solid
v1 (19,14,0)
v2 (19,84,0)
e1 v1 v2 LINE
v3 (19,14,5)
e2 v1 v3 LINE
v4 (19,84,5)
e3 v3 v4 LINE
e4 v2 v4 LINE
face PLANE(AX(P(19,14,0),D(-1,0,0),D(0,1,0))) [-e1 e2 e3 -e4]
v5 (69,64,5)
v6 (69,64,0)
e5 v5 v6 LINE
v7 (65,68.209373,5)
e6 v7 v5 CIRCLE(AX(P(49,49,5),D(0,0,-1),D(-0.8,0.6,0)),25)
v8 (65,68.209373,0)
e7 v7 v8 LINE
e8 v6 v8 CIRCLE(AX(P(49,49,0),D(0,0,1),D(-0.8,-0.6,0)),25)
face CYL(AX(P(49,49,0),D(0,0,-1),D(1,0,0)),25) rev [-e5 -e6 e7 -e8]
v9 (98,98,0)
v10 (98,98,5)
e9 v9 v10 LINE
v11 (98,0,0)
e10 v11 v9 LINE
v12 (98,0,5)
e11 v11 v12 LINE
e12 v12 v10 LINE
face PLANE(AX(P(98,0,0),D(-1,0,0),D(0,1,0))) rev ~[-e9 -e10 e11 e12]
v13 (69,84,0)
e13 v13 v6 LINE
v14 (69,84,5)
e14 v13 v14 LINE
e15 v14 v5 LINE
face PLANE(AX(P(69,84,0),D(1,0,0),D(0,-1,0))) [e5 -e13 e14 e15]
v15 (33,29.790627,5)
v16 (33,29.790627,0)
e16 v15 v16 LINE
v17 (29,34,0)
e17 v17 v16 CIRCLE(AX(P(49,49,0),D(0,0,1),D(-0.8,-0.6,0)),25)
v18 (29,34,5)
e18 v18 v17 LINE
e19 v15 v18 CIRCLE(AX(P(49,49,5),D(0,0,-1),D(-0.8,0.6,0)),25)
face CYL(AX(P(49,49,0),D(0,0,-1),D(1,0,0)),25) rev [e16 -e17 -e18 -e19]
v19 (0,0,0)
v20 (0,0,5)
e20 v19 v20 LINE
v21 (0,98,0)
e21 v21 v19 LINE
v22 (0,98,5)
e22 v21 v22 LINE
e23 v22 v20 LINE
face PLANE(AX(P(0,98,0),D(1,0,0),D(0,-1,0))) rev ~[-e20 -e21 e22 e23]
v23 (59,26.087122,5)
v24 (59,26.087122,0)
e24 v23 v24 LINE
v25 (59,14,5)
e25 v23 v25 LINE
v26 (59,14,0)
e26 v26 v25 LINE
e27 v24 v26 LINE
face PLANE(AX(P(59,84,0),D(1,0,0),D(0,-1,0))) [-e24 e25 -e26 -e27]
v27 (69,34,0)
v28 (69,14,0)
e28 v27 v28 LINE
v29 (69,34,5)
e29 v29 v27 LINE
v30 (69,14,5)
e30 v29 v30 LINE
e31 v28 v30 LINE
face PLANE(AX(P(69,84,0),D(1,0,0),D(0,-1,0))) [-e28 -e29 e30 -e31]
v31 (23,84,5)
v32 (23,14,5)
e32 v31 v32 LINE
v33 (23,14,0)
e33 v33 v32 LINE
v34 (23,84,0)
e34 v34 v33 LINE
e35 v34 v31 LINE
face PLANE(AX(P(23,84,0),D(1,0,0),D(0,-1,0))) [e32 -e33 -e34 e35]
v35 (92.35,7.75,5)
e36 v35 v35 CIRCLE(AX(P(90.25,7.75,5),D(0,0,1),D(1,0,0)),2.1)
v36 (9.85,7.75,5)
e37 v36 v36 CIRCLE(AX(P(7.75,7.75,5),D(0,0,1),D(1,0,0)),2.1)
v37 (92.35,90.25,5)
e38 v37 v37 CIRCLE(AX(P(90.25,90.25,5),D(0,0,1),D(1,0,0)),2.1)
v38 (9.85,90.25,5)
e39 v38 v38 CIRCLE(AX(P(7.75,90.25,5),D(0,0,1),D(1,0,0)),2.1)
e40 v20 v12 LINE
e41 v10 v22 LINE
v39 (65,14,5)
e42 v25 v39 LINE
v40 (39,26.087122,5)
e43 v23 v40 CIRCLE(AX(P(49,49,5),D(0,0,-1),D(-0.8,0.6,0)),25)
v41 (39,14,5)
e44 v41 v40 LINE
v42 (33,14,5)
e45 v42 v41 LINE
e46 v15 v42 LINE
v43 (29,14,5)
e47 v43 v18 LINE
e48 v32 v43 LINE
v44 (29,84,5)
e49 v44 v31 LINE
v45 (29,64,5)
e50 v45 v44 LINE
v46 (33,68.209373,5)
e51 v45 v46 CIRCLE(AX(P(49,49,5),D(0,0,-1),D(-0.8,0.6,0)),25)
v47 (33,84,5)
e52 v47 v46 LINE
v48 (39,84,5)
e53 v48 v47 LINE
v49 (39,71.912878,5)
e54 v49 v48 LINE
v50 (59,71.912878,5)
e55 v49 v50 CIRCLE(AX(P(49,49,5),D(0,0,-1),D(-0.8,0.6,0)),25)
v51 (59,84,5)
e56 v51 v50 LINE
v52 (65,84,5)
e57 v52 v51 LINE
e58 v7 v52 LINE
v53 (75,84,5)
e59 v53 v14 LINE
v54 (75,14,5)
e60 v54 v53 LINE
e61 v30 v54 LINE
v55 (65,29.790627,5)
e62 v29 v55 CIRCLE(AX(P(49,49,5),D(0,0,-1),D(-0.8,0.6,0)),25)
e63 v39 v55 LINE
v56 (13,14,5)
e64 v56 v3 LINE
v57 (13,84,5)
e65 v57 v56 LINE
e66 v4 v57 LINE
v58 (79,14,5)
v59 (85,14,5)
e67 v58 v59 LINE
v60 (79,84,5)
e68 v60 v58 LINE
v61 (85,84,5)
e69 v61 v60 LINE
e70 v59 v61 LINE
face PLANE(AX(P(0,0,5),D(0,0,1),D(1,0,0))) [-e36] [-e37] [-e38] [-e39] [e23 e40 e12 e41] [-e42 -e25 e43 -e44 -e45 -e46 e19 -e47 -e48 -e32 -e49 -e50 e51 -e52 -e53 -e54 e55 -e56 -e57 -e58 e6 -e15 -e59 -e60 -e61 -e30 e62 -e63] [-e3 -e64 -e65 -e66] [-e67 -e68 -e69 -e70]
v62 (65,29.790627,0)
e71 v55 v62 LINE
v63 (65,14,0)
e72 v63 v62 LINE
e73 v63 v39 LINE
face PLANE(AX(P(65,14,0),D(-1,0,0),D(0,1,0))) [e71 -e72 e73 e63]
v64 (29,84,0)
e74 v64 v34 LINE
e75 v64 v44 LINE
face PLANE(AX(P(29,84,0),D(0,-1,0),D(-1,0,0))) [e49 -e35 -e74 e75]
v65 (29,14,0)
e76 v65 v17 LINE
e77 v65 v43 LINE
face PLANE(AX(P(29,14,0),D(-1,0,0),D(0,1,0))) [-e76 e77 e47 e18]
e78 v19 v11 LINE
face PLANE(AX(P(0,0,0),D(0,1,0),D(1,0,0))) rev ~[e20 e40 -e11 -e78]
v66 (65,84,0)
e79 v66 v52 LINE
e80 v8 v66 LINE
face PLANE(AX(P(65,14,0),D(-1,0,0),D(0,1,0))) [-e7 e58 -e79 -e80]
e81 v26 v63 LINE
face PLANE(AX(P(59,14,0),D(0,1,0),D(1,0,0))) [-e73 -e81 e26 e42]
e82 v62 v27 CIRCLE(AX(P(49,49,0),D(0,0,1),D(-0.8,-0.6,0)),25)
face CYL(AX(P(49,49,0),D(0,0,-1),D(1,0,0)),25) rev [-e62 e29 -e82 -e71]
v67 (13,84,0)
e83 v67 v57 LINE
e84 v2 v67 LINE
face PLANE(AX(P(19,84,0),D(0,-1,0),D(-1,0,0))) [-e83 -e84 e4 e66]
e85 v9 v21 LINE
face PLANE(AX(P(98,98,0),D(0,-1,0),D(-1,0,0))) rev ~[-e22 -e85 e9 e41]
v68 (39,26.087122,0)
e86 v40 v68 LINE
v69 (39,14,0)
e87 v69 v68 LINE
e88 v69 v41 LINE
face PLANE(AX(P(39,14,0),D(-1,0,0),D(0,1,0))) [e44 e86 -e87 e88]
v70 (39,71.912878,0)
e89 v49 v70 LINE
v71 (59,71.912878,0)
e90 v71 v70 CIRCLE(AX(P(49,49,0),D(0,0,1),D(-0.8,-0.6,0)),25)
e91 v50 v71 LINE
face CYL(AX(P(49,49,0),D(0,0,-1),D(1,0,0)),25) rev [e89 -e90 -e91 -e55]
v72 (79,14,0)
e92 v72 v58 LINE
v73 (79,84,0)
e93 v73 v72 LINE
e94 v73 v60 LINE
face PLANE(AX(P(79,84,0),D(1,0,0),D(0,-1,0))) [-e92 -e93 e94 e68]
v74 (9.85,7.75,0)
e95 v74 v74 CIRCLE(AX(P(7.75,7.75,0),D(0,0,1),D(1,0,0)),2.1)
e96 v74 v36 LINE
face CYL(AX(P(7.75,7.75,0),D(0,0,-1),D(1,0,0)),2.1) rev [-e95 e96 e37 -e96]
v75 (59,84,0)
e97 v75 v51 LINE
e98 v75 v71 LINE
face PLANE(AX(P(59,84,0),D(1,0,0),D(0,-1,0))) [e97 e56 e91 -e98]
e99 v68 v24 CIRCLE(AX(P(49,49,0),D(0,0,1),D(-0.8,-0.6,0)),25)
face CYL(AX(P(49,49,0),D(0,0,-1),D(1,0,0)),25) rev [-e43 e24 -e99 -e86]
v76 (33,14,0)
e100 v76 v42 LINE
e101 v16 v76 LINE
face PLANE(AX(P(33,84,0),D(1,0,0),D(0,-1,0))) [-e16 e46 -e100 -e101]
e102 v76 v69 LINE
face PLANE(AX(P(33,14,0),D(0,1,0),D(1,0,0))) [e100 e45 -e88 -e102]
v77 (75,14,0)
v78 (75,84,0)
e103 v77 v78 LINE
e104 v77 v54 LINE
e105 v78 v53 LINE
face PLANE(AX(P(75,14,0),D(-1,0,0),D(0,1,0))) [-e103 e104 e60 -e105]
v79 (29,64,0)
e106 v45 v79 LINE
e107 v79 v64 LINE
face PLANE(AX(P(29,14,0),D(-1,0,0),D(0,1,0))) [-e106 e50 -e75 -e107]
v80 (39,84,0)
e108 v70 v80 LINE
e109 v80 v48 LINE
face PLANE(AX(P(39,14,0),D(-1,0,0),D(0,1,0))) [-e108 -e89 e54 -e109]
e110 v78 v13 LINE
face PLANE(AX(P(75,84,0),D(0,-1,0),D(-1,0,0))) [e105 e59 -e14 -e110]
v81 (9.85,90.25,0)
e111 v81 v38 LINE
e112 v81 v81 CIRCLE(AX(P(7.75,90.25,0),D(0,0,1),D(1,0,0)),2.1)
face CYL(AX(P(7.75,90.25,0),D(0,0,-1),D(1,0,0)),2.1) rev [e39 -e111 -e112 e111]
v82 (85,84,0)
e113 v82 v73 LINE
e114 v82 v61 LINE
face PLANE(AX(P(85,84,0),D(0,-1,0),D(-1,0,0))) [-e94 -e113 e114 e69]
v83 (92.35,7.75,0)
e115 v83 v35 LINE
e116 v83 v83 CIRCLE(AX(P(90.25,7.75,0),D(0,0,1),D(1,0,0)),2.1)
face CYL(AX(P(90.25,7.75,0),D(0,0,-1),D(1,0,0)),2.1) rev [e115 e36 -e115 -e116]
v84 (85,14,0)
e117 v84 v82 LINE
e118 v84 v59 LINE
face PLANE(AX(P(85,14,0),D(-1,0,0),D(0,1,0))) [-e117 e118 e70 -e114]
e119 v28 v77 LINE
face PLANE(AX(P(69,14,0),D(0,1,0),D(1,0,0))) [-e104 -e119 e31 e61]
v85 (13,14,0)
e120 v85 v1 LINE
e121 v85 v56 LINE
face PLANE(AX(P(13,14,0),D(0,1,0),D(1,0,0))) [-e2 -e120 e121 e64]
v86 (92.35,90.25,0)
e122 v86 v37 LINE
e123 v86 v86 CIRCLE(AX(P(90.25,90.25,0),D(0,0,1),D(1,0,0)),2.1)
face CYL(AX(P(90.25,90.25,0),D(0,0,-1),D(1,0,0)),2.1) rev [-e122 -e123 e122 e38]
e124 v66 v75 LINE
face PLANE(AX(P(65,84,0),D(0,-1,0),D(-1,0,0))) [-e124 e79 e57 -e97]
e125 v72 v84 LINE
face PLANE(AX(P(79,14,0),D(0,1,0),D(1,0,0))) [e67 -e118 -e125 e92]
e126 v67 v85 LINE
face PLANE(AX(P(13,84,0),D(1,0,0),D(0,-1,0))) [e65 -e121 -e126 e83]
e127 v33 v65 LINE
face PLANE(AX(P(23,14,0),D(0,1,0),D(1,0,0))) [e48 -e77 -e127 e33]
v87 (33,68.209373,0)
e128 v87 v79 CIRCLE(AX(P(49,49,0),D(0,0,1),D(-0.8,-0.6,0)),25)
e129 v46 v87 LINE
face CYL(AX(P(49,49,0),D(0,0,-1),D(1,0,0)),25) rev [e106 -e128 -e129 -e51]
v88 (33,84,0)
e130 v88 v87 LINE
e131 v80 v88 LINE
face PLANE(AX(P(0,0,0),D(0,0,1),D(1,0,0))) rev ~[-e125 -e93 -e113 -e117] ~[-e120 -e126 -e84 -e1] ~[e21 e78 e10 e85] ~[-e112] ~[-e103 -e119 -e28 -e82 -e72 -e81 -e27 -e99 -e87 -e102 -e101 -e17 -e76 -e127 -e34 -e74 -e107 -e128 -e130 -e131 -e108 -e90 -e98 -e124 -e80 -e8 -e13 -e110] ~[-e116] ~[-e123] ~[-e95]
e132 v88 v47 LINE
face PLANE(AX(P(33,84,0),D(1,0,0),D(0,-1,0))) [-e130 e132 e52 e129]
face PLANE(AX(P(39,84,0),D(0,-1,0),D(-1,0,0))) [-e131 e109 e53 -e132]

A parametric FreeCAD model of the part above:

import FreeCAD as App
import Part
import Sketcher

V = App.Vector
Q = App.Units.Quantity

doc = App.newDocument("Part")
body = doc.addObject("PartDesign::Body", "Body")

# Sketch on XY plane
sketch1 = doc.addObject("Sketcher::SketchObject", "Sketch")
body.addObject(sketch1)
sketch1.AttachmentSupport = (doc.XY_Plane, [""])
sketch1.MapMode = "FlatFace"
sketch1.addGeometry([
    Part.LineSegment(V(0, 98, 0), V(0, 0, 0)),
    Part.LineSegment(V(0, 0, 0), V(98, 0, 0)),
    Part.LineSegment(V(98, 0, 0), V(98, 98, 0)),
    Part.LineSegment(V(98, 98, 0), V(0, 98, 0)),
], False)
sketch1.addConstraint([
    Sketcher.Constraint("Coincident", 0, 2, 1, 1),
    Sketcher.Constraint("Coincident", 1, 2, 2, 1),
    Sketcher.Constraint("Coincident", 2, 2, 3, 1),
    Sketcher.Constraint("Coincident", 3, 2, 0, 1),
    Sketcher.Constraint("Vertical", 0),
    Sketcher.Constraint("Horizontal", 1),
    Sketcher.Constraint("Vertical", 2),
    Sketcher.Constraint("Horizontal", 3),
    Sketcher.Constraint("Coincident", 0, 2, -1, 1),
    Sketcher.Constraint("Equal", 3, 0),
    Sketcher.Constraint("DistanceX", 1, 1, 1, 2, Q("98 mm")),
])
pad1 = doc.addObject("PartDesign::Pad", "Pad")
body.addObject(pad1)
pad1.Profile = sketch1
pad1.Length = 5

# Sketch on XY plane
sketch2 = doc.addObject("Sketcher::SketchObject", "Sketch001")
body.addObject(sketch2)
sketch2.AttachmentSupport = (doc.XY_Plane, [""])
sketch2.MapMode = "FlatFace"
sketch2.addGeometry(Part.Circle(V(7.75, 7.75, 0), V(0, 0, 1), 2.1), False)
sketch2.addConstraint([
    Sketcher.Constraint("Diameter", 0, Q("4.2 mm")),
    Sketcher.Constraint("DistanceX", -1, 1, 0, 3, Q("7.75 mm")),
    Sketcher.Constraint("DistanceY", -1, 1, 0, 3, Q("7.75 mm")),
])
pocket1 = doc.addObject("PartDesign::Pocket", "Pocket")
body.addObject(pocket1)
pocket1.Profile = sketch2
pocket1.Length = 5
pocket1.Reversed = True

# Sketch on XY plane
sketch3 = doc.addObject("Sketcher::SketchObject", "Sketch002")
body.addObject(sketch3)
sketch3.AttachmentSupport = (doc.XY_Plane, [""])
sketch3.MapMode = "FlatFace"
sketch3.addGeometry(Part.Circle(V(7.75, 90.25, 0), V(0, 0, 1), 2.1), False)
sketch3.addConstraint([
    Sketcher.Constraint("Diameter", 0, Q("4.2 mm")),
    Sketcher.Constraint("DistanceX", -1, 1, 0, 3, Q("7.75 mm")),
    Sketcher.Constraint("DistanceY", -1, 1, 0, 3, Q("90.25 mm")),
])
pocket2 = doc.addObject("PartDesign::Pocket", "Pocket001")
body.addObject(pocket2)
pocket2.Profile = sketch3
pocket2.Length = 5
pocket2.Reversed = True

# Sketch on XY plane
sketch4 = doc.addObject("Sketcher::SketchObject", "Sketch003")
body.addObject(sketch4)
sketch4.AttachmentSupport = (doc.XY_Plane, [""])
sketch4.MapMode = "FlatFace"
sketch4.addGeometry(Part.Circle(V(90.25, 7.75, 0), V(0, 0, 1), 2.1), False)
sketch4.addConstraint([
    Sketcher.Constraint("Diameter", 0, Q("4.2 mm")),
    Sketcher.Constraint("DistanceX", -1, 1, 0, 3, Q("90.25 mm")),
    Sketcher.Constraint("DistanceY", -1, 1, 0, 3, Q("7.75 mm")),
])
pocket3 = doc.addObject("PartDesign::Pocket", "Pocket002")
body.addObject(pocket3)
pocket3.Profile = sketch4
pocket3.Length = 5
pocket3.Reversed = True

# Sketch on XY plane
sketch5 = doc.addObject("Sketcher::SketchObject", "Sketch004")
body.addObject(sketch5)
sketch5.AttachmentSupport = (doc.XY_Plane, [""])
sketch5.MapMode = "FlatFace"
sketch5.addGeometry(Part.Circle(V(90.25, 90.25, 0), V(0, 0, 1), 2.1), False)
sketch5.addConstraint([
    Sketcher.Constraint("Diameter", 0, Q("4.2 mm")),
    Sketcher.Constraint("DistanceX", -1, 1, 0, 3, Q("90.25 mm")),
    Sketcher.Constraint("DistanceY", -1, 1, 0, 3, Q("90.25 mm")),
])
pocket4 = doc.addObject("PartDesign::Pocket", "Pocket003")
body.addObject(pocket4)
pocket4.Profile = sketch5
pocket4.Length = 5
pocket4.Reversed = True

# Sketch on XY plane
sketch6 = doc.addObject("Sketcher::SketchObject", "Sketch005")
body.addObject(sketch6)
sketch6.AttachmentSupport = (doc.XY_Plane, [""])
sketch6.MapMode = "FlatFace"
sketch6.addGeometry(Part.Circle(V(49, 49, 0), V(0, 0, 1), 25), False)
sketch6.addConstraint([
    Sketcher.Constraint("Diameter", 0, Q("50 mm")),
    Sketcher.Constraint("DistanceX", -1, 1, 0, 3, Q("49 mm")),
    Sketcher.Constraint("DistanceY", -1, 1, 0, 3, Q("49 mm")),
])
pocket5 = doc.addObject("PartDesign::Pocket", "Pocket004")
body.addObject(pocket5)
pocket5.Profile = sketch6
pocket5.Length = 5
pocket5.Reversed = True

# Sketch on XY plane
sketch7 = doc.addObject("Sketcher::SketchObject", "Sketch006")
body.addObject(sketch7)
sketch7.AttachmentSupport = (doc.XY_Plane, [""])
sketch7.MapMode = "FlatFace"
sketch7.addGeometry([
    Part.LineSegment(V(13, 84, 0), V(13, 14, 0)),
    Part.LineSegment(V(13, 14, 0), V(19, 14, 0)),
    Part.LineSegment(V(19, 14, 0), V(19, 84, 0)),
    Part.LineSegment(V(19, 84, 0), V(13, 84, 0)),
], False)
sketch7.addConstraint([
    Sketcher.Constraint("Coincident", 0, 2, 1, 1),
    Sketcher.Constraint("Coincident", 1, 2, 2, 1),
    Sketcher.Constraint("Coincident", 2, 2, 3, 1),
    Sketcher.Constraint("Coincident", 3, 2, 0, 1),
    Sketcher.Constraint("Vertical", 0),
    Sketcher.Constraint("Horizontal", 1),
    Sketcher.Constraint("Vertical", 2),
    Sketcher.Constraint("Horizontal", 3),
    Sketcher.Constraint("DistanceX", 1, 1, 1, 2, Q("6 mm")),
    Sketcher.Constraint("DistanceY", 0, 2, 0, 1, Q("70 mm")),
    Sketcher.Constraint("DistanceX", -1, 1, 0, 2, Q("13 mm")),
    Sketcher.Constraint("DistanceY", -1, 1, 0, 2, Q("14 mm")),
])
pocket6 = doc.addObject("PartDesign::Pocket", "Pocket005")
body.addObject(pocket6)
pocket6.Profile = sketch7
pocket6.Length = 5
pocket6.Reversed = True

# Sketch on XY plane
sketch8 = doc.addObject("Sketcher::SketchObject", "Sketch007")
body.addObject(sketch8)
sketch8.AttachmentSupport = (doc.XY_Plane, [""])
sketch8.MapMode = "FlatFace"
sketch8.addGeometry([
    Part.LineSegment(V(23, 84, 0), V(23, 14, 0)),
    Part.LineSegment(V(23, 14, 0), V(29, 14, 0)),
    Part.LineSegment(V(29, 14, 0), V(29, 84, 0)),
    Part.LineSegment(V(29, 84, 0), V(23, 84, 0)),
], False)
sketch8.addConstraint([
    Sketcher.Constraint("Coincident", 0, 2, 1, 1),
    Sketcher.Constraint("Coincident", 1, 2, 2, 1),
    Sketcher.Constraint("Coincident", 2, 2, 3, 1),
    Sketcher.Constraint("Coincident", 3, 2, 0, 1),
    Sketcher.Constraint("Vertical", 0),
    Sketcher.Constraint("Horizontal", 1),
    Sketcher.Constraint("Vertical", 2),
    Sketcher.Constraint("Horizontal", 3),
    Sketcher.Constraint("DistanceX", 1, 1, 1, 2, Q("6 mm")),
    Sketcher.Constraint("DistanceY", 0, 2, 0, 1, Q("70 mm")),
    Sketcher.Constraint("DistanceX", -1, 1, 0, 2, Q("23 mm")),
    Sketcher.Constraint("DistanceY", -1, 1, 0, 2, Q("14 mm")),
])
pocket7 = doc.addObject("PartDesign::Pocket", "Pocket006")
body.addObject(pocket7)
pocket7.Profile = sketch8
pocket7.Length = 5
pocket7.Reversed = True

# Sketch on XY plane
sketch9 = doc.addObject("Sketcher::SketchObject", "Sketch008")
body.addObject(sketch9)
sketch9.AttachmentSupport = (doc.XY_Plane, [""])
sketch9.MapMode = "FlatFace"
sketch9.addGeometry([
    Part.LineSegment(V(33, 84, 0), V(33, 14, 0)),
    Part.LineSegment(V(33, 14, 0), V(39, 14, 0)),
    Part.LineSegment(V(39, 14, 0), V(39, 84, 0)),
    Part.LineSegment(V(39, 84, 0), V(33, 84, 0)),
], False)
sketch9.addConstraint([
    Sketcher.Constraint("Coincident", 0, 2, 1, 1),
    Sketcher.Constraint("Coincident", 1, 2, 2, 1),
    Sketcher.Constraint("Coincident", 2, 2, 3, 1),
    Sketcher.Constraint("Coincident", 3, 2, 0, 1),
    Sketcher.Constraint("Vertical", 0),
    Sketcher.Constraint("Horizontal", 1),
    Sketcher.Constraint("Vertical", 2),
    Sketcher.Constraint("Horizontal", 3),
    Sketcher.Constraint("DistanceX", 1, 1, 1, 2, Q("6 mm")),
    Sketcher.Constraint("DistanceY", 0, 2, 0, 1, Q("70 mm")),
    Sketcher.Constraint("DistanceX", -1, 1, 0, 2, Q("33 mm")),
    Sketcher.Constraint("DistanceY", -1, 1, 0, 2, Q("14 mm")),
])
pocket8 = doc.addObject("PartDesign::Pocket", "Pocket007")
body.addObject(pocket8)
pocket8.Profile = sketch9
pocket8.Length = 5
pocket8.Reversed = True

# Sketch on XY plane
sketch10 = doc.addObject("Sketcher::SketchObject", "Sketch009")
body.addObject(sketch10)
sketch10.AttachmentSupport = (doc.XY_Plane, [""])
sketch10.MapMode = "FlatFace"
sketch10.addGeometry([
    Part.LineSegment(V(59, 84, 0), V(59, 14, 0)),
    Part.LineSegment(V(59, 14, 0), V(65, 14, 0)),
    Part.LineSegment(V(65, 14, 0), V(65, 84, 0)),
    Part.LineSegment(V(65, 84, 0), V(59, 84, 0)),
], False)
sketch10.addConstraint([
    Sketcher.Constraint("Coincident", 0, 2, 1, 1),
    Sketcher.Constraint("Coincident", 1, 2, 2, 1),
    Sketcher.Constraint("Coincident", 2, 2, 3, 1),
    Sketcher.Constraint("Coincident", 3, 2, 0, 1),
    Sketcher.Constraint("Vertical", 0),
    Sketcher.Constraint("Horizontal", 1),
    Sketcher.Constraint("Vertical", 2),
    Sketcher.Constraint("Horizontal", 3),
    Sketcher.Constraint("DistanceX", 1, 1, 1, 2, Q("6 mm")),
    Sketcher.Constraint("DistanceY", 0, 2, 0, 1, Q("70 mm")),
    Sketcher.Constraint("DistanceX", -1, 1, 0, 2, Q("59 mm")),
    Sketcher.Constraint("DistanceY", -1, 1, 0, 2, Q("14 mm")),
])
pocket9 = doc.addObject("PartDesign::Pocket", "Pocket008")
body.addObject(pocket9)
pocket9.Profile = sketch10
pocket9.Length = 5
pocket9.Reversed = True

# Sketch on XY plane
sketch11 = doc.addObject("Sketcher::SketchObject", "Sketch010")
body.addObject(sketch11)
sketch11.AttachmentSupport = (doc.XY_Plane, [""])
sketch11.MapMode = "FlatFace"
sketch11.addGeometry([
    Part.LineSegment(V(69, 84, 0), V(69, 14, 0)),
    Part.LineSegment(V(69, 14, 0), V(75, 14, 0)),
    Part.LineSegment(V(75, 14, 0), V(75, 84, 0)),
    Part.LineSegment(V(75, 84, 0), V(69, 84, 0)),
], False)
sketch11.addConstraint([
    Sketcher.Constraint("Coincident", 0, 2, 1, 1),
    Sketcher.Constraint("Coincident", 1, 2, 2, 1),
    Sketcher.Constraint("Coincident", 2, 2, 3, 1),
    Sketcher.Constraint("Coincident", 3, 2, 0, 1),
    Sketcher.Constraint("Vertical", 0),
    Sketcher.Constraint("Horizontal", 1),
    Sketcher.Constraint("Vertical", 2),
    Sketcher.Constraint("Horizontal", 3),
    Sketcher.Constraint("DistanceX", 1, 1, 1, 2, Q("6 mm")),
    Sketcher.Constraint("DistanceY", 0, 2, 0, 1, Q("70 mm")),
    Sketcher.Constraint("DistanceX", -1, 1, 0, 2, Q("69 mm")),
    Sketcher.Constraint("DistanceY", -1, 1, 0, 2, Q("14 mm")),
])
pocket10 = doc.addObject("PartDesign::Pocket", "Pocket009")
body.addObject(pocket10)
pocket10.Profile = sketch11
pocket10.Length = 5
pocket10.Reversed = True

# Sketch on XY plane
sketch12 = doc.addObject("Sketcher::SketchObject", "Sketch011")
body.addObject(sketch12)
sketch12.AttachmentSupport = (doc.XY_Plane, [""])
sketch12.MapMode = "FlatFace"
sketch12.addGeometry([
    Part.LineSegment(V(79, 84, 0), V(79, 14, 0)),
    Part.LineSegment(V(79, 14, 0), V(85, 14, 0)),
    Part.LineSegment(V(85, 14, 0), V(85, 84, 0)),
    Part.LineSegment(V(85, 84, 0), V(79, 84, 0)),
], False)
sketch12.addConstraint([
    Sketcher.Constraint("Coincident", 0, 2, 1, 1),
    Sketcher.Constraint("Coincident", 1, 2, 2, 1),
    Sketcher.Constraint("Coincident", 2, 2, 3, 1),
    Sketcher.Constraint("Coincident", 3, 2, 0, 1),
    Sketcher.Constraint("Vertical", 0),
    Sketcher.Constraint("Horizontal", 1),
    Sketcher.Constraint("Vertical", 2),
    Sketcher.Constraint("Horizontal", 3),
    Sketcher.Constraint("DistanceX", 1, 1, 1, 2, Q("6 mm")),
    Sketcher.Constraint("DistanceY", 0, 2, 0, 1, Q("70 mm")),
    Sketcher.Constraint("DistanceX", -1, 1, 0, 2, Q("79 mm")),
    Sketcher.Constraint("DistanceY", -1, 1, 0, 2, Q("14 mm")),
])
pocket11 = doc.addObject("PartDesign::Pocket", "Pocket010")
body.addObject(pocket11)
pocket11.Profile = sketch12
pocket11.Length = 5
pocket11.Reversed = True

doc.recompute()
